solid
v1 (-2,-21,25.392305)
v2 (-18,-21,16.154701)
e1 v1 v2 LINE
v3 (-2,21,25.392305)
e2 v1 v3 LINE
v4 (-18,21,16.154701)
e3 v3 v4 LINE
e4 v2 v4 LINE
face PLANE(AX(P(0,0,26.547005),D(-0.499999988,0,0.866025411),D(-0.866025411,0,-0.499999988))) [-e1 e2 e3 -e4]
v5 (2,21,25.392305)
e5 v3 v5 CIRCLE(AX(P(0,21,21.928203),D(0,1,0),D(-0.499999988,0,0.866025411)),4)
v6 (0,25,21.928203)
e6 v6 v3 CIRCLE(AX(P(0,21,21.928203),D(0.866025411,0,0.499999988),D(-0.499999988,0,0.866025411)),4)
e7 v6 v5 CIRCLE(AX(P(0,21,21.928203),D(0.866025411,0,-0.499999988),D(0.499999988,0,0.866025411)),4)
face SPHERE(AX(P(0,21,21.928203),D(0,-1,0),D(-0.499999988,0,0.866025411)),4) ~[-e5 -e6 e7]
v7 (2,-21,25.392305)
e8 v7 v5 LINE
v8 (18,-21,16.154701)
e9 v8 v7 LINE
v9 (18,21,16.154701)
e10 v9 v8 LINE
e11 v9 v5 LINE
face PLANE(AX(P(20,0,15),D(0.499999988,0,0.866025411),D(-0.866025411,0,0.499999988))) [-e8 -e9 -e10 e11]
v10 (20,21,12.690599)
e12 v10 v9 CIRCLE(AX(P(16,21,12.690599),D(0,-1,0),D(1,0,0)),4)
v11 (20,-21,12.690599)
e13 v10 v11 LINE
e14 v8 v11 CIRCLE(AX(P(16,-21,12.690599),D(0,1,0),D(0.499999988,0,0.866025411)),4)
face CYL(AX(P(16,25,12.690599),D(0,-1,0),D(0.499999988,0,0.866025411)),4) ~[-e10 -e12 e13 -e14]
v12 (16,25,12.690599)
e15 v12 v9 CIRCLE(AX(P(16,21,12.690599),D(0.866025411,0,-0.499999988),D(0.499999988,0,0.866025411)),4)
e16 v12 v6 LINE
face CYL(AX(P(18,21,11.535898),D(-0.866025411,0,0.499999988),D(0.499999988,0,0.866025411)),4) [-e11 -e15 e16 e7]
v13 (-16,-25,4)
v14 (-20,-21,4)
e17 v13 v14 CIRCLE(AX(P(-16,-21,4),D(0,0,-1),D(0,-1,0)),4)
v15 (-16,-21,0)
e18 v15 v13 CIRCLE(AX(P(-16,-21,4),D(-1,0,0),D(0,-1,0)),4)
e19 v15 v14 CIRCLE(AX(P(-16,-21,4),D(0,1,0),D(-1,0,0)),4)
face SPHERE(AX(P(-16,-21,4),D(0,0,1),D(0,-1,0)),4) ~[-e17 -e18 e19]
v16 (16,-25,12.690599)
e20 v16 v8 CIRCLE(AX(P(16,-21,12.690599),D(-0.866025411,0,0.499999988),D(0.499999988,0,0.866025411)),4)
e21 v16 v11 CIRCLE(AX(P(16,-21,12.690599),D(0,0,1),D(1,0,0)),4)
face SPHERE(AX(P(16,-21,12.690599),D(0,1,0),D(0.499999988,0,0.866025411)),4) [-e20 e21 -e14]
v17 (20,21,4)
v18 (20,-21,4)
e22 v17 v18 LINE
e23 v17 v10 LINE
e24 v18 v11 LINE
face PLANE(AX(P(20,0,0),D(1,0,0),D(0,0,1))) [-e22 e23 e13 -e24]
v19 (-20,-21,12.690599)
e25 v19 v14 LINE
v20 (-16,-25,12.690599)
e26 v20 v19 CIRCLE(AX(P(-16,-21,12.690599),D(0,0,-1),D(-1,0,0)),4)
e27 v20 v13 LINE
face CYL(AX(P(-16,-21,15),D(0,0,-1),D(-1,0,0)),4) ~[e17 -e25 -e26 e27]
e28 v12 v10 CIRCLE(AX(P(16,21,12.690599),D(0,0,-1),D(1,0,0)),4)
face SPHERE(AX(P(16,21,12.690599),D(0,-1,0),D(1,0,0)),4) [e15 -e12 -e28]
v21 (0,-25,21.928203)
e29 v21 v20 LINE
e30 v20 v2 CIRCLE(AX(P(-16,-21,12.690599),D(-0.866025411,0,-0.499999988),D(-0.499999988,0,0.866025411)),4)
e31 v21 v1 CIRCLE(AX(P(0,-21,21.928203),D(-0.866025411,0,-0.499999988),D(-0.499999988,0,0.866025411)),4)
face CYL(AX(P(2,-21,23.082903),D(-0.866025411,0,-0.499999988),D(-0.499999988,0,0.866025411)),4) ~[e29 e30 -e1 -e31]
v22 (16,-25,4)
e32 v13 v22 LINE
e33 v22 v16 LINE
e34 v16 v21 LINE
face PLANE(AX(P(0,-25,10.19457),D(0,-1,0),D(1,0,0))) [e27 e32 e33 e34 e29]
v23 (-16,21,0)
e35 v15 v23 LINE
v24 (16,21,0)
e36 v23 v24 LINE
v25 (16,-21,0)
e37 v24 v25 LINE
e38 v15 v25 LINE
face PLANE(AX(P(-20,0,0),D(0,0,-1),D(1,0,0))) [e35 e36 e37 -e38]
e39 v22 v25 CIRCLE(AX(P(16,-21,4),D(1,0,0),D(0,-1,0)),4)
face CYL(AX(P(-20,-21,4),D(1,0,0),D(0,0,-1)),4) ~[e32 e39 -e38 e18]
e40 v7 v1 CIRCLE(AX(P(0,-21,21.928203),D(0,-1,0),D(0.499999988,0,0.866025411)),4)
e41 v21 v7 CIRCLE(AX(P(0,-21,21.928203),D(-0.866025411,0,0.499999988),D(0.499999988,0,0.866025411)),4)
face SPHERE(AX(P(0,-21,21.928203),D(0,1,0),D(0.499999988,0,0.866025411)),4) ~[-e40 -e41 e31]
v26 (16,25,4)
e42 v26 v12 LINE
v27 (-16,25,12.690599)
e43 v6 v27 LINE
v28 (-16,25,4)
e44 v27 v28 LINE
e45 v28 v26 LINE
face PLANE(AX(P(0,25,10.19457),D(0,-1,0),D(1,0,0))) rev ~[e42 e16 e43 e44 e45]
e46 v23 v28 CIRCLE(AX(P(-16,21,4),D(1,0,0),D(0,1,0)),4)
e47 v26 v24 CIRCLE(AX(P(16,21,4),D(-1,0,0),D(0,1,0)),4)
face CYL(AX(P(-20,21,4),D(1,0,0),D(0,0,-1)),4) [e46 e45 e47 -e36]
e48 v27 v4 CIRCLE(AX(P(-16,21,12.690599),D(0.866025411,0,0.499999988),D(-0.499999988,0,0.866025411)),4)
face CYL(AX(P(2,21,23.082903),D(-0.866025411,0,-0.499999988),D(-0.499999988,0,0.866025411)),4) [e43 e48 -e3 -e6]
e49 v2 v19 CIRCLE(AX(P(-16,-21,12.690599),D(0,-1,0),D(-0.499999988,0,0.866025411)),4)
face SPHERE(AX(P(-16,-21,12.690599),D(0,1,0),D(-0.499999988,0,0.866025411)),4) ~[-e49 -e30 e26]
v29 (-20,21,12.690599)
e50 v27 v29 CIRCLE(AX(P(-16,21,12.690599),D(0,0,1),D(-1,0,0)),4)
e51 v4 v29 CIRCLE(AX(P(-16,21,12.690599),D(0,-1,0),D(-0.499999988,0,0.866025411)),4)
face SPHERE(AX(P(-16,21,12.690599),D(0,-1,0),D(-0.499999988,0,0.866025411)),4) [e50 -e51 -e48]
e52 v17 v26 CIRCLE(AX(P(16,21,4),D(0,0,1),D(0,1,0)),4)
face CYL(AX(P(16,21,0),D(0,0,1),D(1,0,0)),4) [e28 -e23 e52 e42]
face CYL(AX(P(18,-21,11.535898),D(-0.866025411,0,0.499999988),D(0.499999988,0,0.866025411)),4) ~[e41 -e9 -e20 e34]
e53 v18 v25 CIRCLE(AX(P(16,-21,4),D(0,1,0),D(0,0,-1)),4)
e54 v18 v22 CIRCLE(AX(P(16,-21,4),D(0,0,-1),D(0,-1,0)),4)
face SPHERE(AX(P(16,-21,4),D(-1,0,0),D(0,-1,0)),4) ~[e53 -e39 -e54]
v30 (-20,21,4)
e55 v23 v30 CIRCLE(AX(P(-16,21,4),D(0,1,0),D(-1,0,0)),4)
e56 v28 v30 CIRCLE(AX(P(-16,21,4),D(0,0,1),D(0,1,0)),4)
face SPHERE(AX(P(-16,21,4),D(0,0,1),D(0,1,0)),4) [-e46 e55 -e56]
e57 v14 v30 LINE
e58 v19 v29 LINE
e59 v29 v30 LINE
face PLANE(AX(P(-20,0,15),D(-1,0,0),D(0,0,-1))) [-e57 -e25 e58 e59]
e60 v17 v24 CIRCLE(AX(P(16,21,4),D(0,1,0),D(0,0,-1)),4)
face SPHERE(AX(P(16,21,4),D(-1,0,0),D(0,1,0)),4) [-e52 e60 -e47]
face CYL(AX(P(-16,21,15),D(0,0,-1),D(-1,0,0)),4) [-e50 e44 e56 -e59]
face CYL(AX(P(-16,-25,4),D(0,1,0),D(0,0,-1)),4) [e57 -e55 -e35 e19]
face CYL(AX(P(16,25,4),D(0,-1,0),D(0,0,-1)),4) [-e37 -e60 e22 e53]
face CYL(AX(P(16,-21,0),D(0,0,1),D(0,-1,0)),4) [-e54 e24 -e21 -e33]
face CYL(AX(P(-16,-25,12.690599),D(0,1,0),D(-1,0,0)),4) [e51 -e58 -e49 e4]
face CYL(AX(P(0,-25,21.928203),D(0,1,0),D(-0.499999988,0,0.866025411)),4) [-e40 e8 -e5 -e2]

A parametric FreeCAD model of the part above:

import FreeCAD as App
import Part
import Sketcher
from FreeCAD import Vector
Q = App.Units.Quantity

doc = App.newDocument("Part")
body = doc.addObject("PartDesign::Body", "Body")

# Sketch on XZ plane
sketch1 = body.newObject("Sketcher::SketchObject", "Sketch")
sketch1.AttachmentSupport = (doc.getObject("XZ_Plane"), [""])
sketch1.MapMode = "FlatFace"
sketch1.addGeometry([
    Part.LineSegment(Vector(-20, 0, 0), Vector(20, 0, 0)),  # 0
    Part.LineSegment(Vector(20, 0, 0), Vector(20, 15, 0)),  # 1
    Part.LineSegment(Vector(20, 15, 0), Vector(0, 27, 0)),  # 2
    Part.LineSegment(Vector(0, 27, 0), Vector(-20, 15, 0)),  # 3
    Part.LineSegment(Vector(-20, 15, 0), Vector(-20, 0, 0)),  # 4
], False)
sketch1.addConstraint([
    Sketcher.Constraint("Coincident", 0, 2, 1, 1),
    Sketcher.Constraint("Coincident", 1, 2, 2, 1),
    Sketcher.Constraint("Coincident", 2, 2, 3, 1),
    Sketcher.Constraint("Coincident", 3, 2, 4, 1),
    Sketcher.Constraint("Coincident", 4, 2, 0, 1),
    Sketcher.Constraint("Horizontal", 0),
    Sketcher.Constraint("Vertical", 1),
    Sketcher.Constraint("Vertical", 4),
    Sketcher.Constraint("Symmetric", 0, 2, 4, 2, -1, 1),
    Sketcher.Constraint("PointOnObject", 2, 2, -2),
    Sketcher.Constraint("Horizontal", 1, 2, 3, 2),
    Sketcher.Constraint("DistanceX", 0, 1, 0, 2, Q("40 mm")),
    Sketcher.Constraint("DistanceY", 1, 1, 1, 2, Q("15 mm")),
    Sketcher.Constraint("Angle", 2, Q("150.000001 deg")),
])
pad1 = body.newObject("PartDesign::Pad", "Pad")
pad1.Profile = sketch1
pad1.Length = 50
pad1.Midplane = True
doc.recompute()

fillet = body.newObject("PartDesign::Fillet", "Fillet")
fillet.Base = (pad1, ["Edge1"])
fillet.UseAllEdges = True
fillet.Radius = 4

doc.recompute()
